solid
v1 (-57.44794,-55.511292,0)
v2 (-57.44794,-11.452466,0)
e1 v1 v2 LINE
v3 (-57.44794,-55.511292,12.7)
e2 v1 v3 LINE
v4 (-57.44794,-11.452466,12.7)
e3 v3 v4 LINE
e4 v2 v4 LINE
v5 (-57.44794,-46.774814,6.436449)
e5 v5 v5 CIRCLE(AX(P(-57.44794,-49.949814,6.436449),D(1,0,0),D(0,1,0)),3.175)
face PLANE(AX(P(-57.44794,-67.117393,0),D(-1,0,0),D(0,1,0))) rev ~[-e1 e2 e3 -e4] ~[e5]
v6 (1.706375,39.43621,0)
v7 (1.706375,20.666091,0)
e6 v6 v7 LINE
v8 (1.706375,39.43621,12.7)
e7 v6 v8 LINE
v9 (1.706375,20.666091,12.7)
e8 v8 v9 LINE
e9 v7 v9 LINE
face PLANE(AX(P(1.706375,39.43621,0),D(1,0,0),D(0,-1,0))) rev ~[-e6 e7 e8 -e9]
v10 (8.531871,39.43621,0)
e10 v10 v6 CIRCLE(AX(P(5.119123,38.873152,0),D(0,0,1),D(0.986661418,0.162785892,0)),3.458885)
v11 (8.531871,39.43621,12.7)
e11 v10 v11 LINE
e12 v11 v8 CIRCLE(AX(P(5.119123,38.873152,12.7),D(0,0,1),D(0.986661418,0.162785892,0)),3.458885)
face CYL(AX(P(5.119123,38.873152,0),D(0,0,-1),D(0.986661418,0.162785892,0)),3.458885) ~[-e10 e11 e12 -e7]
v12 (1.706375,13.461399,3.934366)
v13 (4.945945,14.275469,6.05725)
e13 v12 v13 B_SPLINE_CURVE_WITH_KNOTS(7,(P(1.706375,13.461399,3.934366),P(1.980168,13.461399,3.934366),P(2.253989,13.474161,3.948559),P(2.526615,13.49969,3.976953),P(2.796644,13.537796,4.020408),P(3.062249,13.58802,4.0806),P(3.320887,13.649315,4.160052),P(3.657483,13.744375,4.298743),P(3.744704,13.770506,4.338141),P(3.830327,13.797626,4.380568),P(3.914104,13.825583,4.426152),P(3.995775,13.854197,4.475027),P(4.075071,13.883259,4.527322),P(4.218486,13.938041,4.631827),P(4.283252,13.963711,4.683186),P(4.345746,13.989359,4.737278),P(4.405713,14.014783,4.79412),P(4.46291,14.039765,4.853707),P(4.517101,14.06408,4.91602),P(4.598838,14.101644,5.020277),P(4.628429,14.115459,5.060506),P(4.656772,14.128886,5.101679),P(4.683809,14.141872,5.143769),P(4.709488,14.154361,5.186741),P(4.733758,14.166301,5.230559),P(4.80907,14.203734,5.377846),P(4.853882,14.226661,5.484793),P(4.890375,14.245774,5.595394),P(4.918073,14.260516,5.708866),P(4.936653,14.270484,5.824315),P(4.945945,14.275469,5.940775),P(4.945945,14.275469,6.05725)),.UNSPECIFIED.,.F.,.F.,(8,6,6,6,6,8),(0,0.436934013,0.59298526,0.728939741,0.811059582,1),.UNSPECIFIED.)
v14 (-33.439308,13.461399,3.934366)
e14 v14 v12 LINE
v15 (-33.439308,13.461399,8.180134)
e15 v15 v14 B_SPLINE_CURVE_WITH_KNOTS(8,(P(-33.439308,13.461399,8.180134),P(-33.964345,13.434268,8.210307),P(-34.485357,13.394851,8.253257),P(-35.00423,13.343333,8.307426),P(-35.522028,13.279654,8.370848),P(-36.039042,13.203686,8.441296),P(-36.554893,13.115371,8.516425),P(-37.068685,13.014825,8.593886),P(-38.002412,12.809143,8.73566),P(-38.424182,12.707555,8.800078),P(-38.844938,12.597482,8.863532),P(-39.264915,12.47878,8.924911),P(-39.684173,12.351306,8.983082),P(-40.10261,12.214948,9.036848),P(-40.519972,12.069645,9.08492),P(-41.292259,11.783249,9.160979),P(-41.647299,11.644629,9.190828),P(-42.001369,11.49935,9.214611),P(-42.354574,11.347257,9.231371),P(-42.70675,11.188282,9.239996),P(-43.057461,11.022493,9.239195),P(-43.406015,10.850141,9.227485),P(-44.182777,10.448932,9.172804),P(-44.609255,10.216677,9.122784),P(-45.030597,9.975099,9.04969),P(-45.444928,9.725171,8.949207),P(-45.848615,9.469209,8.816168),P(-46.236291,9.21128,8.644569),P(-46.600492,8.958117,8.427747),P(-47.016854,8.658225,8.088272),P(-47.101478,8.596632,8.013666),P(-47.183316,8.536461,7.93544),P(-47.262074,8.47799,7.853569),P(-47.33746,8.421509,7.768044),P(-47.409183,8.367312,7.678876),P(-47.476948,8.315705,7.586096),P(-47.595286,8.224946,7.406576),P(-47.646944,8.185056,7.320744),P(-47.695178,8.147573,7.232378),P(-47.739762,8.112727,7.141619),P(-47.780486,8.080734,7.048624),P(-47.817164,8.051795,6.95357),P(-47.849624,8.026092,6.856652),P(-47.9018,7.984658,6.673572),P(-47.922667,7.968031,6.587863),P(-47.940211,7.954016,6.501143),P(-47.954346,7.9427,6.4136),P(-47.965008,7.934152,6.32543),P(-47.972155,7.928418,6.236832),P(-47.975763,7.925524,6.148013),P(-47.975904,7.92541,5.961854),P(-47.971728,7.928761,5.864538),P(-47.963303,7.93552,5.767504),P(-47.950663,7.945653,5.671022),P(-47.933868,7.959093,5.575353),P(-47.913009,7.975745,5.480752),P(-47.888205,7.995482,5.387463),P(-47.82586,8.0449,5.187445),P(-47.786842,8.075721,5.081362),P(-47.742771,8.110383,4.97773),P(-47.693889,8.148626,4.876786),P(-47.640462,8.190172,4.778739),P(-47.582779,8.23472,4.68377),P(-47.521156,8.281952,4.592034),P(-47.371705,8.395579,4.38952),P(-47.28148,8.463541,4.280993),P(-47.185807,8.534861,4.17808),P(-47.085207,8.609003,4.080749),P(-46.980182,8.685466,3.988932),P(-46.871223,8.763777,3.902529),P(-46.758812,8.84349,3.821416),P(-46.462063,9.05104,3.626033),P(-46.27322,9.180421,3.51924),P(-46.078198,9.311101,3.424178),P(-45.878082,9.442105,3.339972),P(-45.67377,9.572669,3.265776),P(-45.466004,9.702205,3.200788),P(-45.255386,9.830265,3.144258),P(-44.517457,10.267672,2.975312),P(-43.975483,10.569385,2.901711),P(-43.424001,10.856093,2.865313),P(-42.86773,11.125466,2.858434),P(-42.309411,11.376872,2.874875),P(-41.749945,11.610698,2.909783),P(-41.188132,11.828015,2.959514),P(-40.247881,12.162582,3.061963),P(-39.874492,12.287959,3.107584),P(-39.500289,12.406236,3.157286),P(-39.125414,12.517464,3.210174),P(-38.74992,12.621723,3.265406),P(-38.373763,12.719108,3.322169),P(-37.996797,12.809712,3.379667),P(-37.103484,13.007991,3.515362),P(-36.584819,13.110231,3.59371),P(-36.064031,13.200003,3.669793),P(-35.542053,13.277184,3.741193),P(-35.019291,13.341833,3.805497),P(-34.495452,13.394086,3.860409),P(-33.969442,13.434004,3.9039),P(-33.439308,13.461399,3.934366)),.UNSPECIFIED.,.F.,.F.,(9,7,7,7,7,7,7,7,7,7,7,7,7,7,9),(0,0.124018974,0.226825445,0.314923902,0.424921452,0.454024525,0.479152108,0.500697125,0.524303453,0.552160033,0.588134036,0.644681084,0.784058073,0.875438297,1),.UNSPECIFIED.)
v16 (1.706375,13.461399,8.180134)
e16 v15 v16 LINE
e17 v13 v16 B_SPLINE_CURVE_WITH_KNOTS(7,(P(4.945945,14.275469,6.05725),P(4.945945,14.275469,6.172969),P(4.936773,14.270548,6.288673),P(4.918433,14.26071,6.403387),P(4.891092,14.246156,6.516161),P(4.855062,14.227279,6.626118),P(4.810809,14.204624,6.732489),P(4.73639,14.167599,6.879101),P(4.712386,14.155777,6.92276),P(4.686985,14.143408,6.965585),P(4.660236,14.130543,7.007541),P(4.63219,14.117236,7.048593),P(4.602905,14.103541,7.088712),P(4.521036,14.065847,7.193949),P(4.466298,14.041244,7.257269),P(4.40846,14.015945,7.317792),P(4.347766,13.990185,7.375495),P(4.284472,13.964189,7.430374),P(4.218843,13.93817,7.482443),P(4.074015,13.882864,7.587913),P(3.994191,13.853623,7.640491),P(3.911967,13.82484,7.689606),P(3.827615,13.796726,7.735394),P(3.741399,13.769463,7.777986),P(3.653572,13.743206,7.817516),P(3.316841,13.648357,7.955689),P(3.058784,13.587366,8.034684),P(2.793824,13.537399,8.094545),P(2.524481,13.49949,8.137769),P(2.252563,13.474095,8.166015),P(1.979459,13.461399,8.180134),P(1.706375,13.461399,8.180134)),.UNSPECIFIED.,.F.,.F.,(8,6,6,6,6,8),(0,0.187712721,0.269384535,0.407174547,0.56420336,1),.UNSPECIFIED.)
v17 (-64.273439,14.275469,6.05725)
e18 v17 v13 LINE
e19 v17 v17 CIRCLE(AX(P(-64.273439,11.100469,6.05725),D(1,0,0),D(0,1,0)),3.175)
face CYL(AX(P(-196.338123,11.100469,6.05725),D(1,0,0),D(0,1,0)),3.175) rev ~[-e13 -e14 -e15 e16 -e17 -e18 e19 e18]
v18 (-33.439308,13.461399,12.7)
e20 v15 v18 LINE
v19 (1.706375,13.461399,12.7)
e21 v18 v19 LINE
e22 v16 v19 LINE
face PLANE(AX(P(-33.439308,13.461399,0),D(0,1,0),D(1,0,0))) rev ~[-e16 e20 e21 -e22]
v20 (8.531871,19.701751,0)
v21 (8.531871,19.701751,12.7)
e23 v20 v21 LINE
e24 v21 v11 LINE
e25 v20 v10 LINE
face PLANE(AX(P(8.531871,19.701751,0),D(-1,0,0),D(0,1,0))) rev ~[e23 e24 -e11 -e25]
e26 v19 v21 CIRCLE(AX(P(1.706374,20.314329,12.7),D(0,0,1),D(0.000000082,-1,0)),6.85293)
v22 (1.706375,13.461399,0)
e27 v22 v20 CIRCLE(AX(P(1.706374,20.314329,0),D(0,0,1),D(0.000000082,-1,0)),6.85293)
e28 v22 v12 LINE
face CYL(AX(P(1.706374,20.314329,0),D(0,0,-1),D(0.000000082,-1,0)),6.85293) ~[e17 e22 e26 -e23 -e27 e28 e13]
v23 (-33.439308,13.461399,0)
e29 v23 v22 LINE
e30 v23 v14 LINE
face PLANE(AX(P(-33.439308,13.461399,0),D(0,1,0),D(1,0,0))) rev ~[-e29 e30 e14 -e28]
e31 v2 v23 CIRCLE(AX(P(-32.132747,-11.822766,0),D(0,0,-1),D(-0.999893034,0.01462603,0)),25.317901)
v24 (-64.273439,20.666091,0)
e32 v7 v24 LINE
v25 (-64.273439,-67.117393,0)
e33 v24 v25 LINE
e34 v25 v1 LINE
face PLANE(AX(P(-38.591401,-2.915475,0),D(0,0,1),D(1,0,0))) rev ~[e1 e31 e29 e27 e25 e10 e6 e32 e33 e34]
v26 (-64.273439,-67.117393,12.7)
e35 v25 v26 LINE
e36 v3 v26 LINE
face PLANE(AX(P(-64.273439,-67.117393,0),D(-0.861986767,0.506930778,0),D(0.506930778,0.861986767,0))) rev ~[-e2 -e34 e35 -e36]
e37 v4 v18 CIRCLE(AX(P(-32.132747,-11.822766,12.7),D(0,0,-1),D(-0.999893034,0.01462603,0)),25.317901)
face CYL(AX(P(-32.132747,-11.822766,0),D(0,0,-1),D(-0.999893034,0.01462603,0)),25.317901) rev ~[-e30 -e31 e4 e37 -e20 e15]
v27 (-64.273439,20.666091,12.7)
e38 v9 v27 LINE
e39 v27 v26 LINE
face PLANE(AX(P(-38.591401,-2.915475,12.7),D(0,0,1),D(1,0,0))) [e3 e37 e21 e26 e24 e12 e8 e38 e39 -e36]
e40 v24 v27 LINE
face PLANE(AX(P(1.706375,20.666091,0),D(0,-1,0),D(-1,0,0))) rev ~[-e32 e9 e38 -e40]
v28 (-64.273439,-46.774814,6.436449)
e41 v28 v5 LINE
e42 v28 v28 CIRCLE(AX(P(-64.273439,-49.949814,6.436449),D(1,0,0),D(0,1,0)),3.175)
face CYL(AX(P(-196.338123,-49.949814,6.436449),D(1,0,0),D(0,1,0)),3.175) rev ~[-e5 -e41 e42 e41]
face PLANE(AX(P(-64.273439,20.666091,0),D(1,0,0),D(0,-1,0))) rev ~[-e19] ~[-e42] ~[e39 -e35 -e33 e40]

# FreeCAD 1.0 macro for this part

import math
import FreeCAD as App
import Part
import Sketcher
Q = App.Units.Quantity


def add_polygon(sketch, points):
    """Adds a closed chain of lines whose ends are joined by coincident constraints."""
    first, n = sketch.GeometryCount, len(points)
    for a, b in zip(points, points[1:] + points[:1]):
        sketch.addGeometry(Part.LineSegment(App.Vector(*a, 0), App.Vector(*b, 0)), False)
    for i in range(n):
        sketch.addConstraint(Sketcher.Constraint("Coincident", first + i, 2, first + (i + 1) % n, 1))

doc = App.newDocument("Part")
body = doc.addObject("PartDesign::Body", "Body")

# Sketch on XY plane
sketch1 = doc.addObject("Sketcher::SketchObject", "Sketch")
body.addObject(sketch1)
sketch1.AttachmentSupport = (doc.XY_Plane, [""])
sketch1.MapMode = "FlatFace"
sketch1.addGeometry([
    Part.LineSegment(App.Vector(-64.3, 20.7, 0), App.Vector(-64.3, -67.1, 0)),  # 0
    Part.LineSegment(App.Vector(-64.3, -67.1, 0), App.Vector(-57.4, -67.1, 0)),  # 1
    Part.LineSegment(App.Vector(-57.4, -67.1, 0), App.Vector(-57.4, -11.5, 0)),  # 2
    Part.ArcOfCircle(Part.Circle(App.Vector(-32.1, -11.8, 0), App.Vector(0, 0, 1), 25.3), math.radians(93), math.radians(179)),  # 3
    Part.LineSegment(App.Vector(-33.4, 13.5, 0), App.Vector(1.7, 13.5, 0)),  # 4
    Part.ArcOfCircle(Part.Circle(App.Vector(1.7, 20.3, 0), App.Vector(0, 0, 1), 6.9), math.radians(-90), math.radians(-5)),  # 5
    Part.LineSegment(App.Vector(8.5, 19.7, 0), App.Vector(8.5, 39.4, 0)),  # 6
    Part.ArcOfCircle(Part.Circle(App.Vector(5.1, 38.9, 0), App.Vector(0, 0, 1), 3.5), math.radians(9), math.radians(171)),  # 7
    Part.LineSegment(App.Vector(1.7, 39.4, 0), App.Vector(1.7, 20.7, 0)),  # 8
    Part.LineSegment(App.Vector(1.7, 20.7, 0), App.Vector(-64.3, 20.7, 0)),  # 9
], False)
sketch1.addConstraint([
    Sketcher.Constraint("Coincident", 0, 2, 1, 1),
    Sketcher.Constraint("Coincident", 1, 2, 2, 1),
    Sketcher.Constraint("Coincident", 2, 2, 3, 2),
    Sketcher.Constraint("Coincident", 3, 1, 4, 1),
    Sketcher.Constraint("Tangent", 4, 2, 5, 1),
    Sketcher.Constraint("Coincident", 5, 2, 6, 1),
    Sketcher.Constraint("Coincident", 6, 2, 7, 1),
    Sketcher.Constraint("Coincident", 7, 2, 8, 1),
    Sketcher.Constraint("Coincident", 8, 2, 9, 1),
    Sketcher.Constraint("Coincident", 9, 2, 0, 1),
    Sketcher.Constraint("Vertical", 0),
    Sketcher.Constraint("Horizontal", 1),
    Sketcher.Constraint("Vertical", 2),
    Sketcher.Constraint("Horizontal", 4),
    Sketcher.Constraint("Vertical", 6),
    Sketcher.Constraint("Vertical", 8),
    Sketcher.Constraint("Horizontal", 9),
    Sketcher.Constraint("Horizontal", 6, 2, 7, 2),
    Sketcher.Constraint("Vertical", 4, 2, 7, 2),
    Sketcher.Constraint("Radius", 3, 25.317901),
    Sketcher.Constraint("Radius", 5, 6.85293),
    Sketcher.Constraint("DistanceX", 1, 1, 1, 2, 6.825499),
    Sketcher.Constraint("Radius", 7, 3.458885),
    Sketcher.Constraint("DistanceY", 6, 1, 6, 2, 19.734459),
    Sketcher.Constraint("DistanceY", 8, 2, 8, 1, 18.770119),
    Sketcher.Constraint("DistanceY", -1, 1, 3, 1, 13.461399),
    Sketcher.Constraint("DistanceY", 3, 3, 2, 2, 0.3703),
    Sketcher.Constraint("DistanceY", 5, 2, 7, 3, 19.171401),
    Sketcher.Constraint("DistanceX", 4, 1, 4, 2, 35.145683),
    Sketcher.Constraint("DistanceX", 9, 2, 9, 1, 65.979814),
    Sketcher.Constraint("DistanceY", 0, 2, 0, 1, 87.783484),
    Sketcher.Constraint("DistanceX", 0, 2, -1, 1, 64.273439),
])
pad1 = doc.addObject("PartDesign::Pad", "Pad")
body.addObject(pad1)
pad1.Profile = sketch1
pad1.Length = Q("0.5 in")

# Sketch on YZ plane
sketch2 = doc.addObject("Sketcher::SketchObject", "Sketch001")
body.addObject(sketch2)
sketch2.AttachmentSupport = (doc.YZ_Plane, [""])
sketch2.MapMode = "FlatFace"
sketch2.AttachmentOffset = App.Placement(App.Vector(0, 0, -64.273439), App.Rotation())
sketch2.addGeometry([
    Part.Circle(App.Vector(11.1, 6.1, 0), App.Vector(0, 0, 1), 3.2),
    Part.Circle(App.Vector(-49.9, 6.4, 0), App.Vector(0, 0, 1), 3.2),
], False)
sketch2.addConstraint([
    Sketcher.Constraint("Equal", 0, 1),
    Sketcher.Constraint("Diameter", 0, Q("0.25 in")),
    Sketcher.Constraint("DistanceY", 0, 3, 1, 3, 0.379199),
    Sketcher.Constraint("DistanceX", -1, 1, 0, 3, 11.100469),
    Sketcher.Constraint("DistanceY", -1, 1, 0, 3, 6.05725),
    Sketcher.Constraint("DistanceX", 1, 3, -1, 1, 49.949814),
])
doc.recompute()
hole = doc.addObject("PartDesign::Hole", "Hole")
body.addObject(hole)
hole.Profile = sketch2
hole.ThreadType = "None"
hole.Diameter = Q("0.25 in")
hole.DepthType = "ThroughAll"
hole.Reversed = True

# Sketch on XY plane
sketch3 = doc.addObject("Sketcher::SketchObject", "Sketch002")
body.addObject(sketch3)
sketch3.AttachmentSupport = (doc.XY_Plane, [""])
sketch3.MapMode = "FlatFace"
add_polygon(sketch3, [(-57, -67), (-64, -67), (-57, -56)])  # lines 0-2
sketch3.addConstraint([
    Sketcher.Constraint("Horizontal", 0),
    Sketcher.Constraint("Vertical", 2),
    Sketcher.Constraint("DistanceX", 0, 2, 0, 1, 6.825499),
    Sketcher.Constraint("DistanceY", 2, 2, 2, 1, 11.606101),
    Sketcher.Constraint("DistanceX", 0, 2, -1, 1, 64.273439),
    Sketcher.Constraint("DistanceY", 1, 2, -1, 1, 55.511292),
])
pocket1 = doc.addObject("PartDesign::Pocket", "Pocket")
body.addObject(pocket1)
pocket1.Profile = sketch3
pocket1.Type = "ThroughAll"
pocket1.Reversed = True

doc.recompute()
